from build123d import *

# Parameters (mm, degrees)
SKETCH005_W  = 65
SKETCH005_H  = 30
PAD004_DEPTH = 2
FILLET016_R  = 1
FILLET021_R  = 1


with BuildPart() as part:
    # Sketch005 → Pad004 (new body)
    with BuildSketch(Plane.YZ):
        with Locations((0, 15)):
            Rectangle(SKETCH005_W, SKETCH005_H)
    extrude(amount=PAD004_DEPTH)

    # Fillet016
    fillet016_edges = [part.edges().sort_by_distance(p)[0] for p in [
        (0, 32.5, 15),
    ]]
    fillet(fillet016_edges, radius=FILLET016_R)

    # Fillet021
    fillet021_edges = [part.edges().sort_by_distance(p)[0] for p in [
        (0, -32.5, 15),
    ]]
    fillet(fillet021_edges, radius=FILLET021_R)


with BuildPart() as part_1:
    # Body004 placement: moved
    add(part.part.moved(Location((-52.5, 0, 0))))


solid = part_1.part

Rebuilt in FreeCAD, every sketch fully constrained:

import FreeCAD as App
import Part
import Sketcher
Q = App.Units.Quantity


def edges_at(feature, points):
    """Names of the edges that pass closest to the given points."""
    edges = feature.Shape.Edges
    near = lambda p: min(range(len(edges)), key=lambda i: edges[i].distToShape(Part.Vertex(*p))[0])
    return sorted({f"Edge{near(p) + 1}" for p in points})

doc = App.newDocument("Part")
params = doc.addObject("Spreadsheet::Sheet", "Params")
for row, (alias, value) in enumerate([
    ("sketch1_width", "65 mm"),
    ("sketch1_height", "30 mm"),
    ("pad1_length", "2 mm"),
    ("fillet_radius", "1 mm"),
    ("fillet2_radius", "1 mm"),
], start=1):
    params.set(f"A{row}", alias)
    params.set(f"B{row}", "=" + value)
    params.setAlias(f"B{row}", alias)

body = doc.addObject("PartDesign::Body", "Body")

sketch1 = doc.addObject("Sketcher::SketchObject", "Sketch")
body.addObject(sketch1)
sketch1.AttachmentSupport = (doc.YZ_Plane, [""])
sketch1.MapMode = "FlatFace"
sketch1.addGeometry([
    Part.LineSegment(App.Vector(-32.5, 30, 0), App.Vector(-32.5, 0, 0)),
    Part.LineSegment(App.Vector(-32.5, 0, 0), App.Vector(32.5, 0, 0)),
    Part.LineSegment(App.Vector(32.5, 0, 0), App.Vector(32.5, 30, 0)),
    Part.LineSegment(App.Vector(32.5, 30, 0), App.Vector(-32.5, 30, 0)),
], False)
sketch1.addConstraint([
    Sketcher.Constraint("Coincident", 0, 2, 1, 1),
    Sketcher.Constraint("Coincident", 1, 2, 2, 1),
    Sketcher.Constraint("Coincident", 2, 2, 3, 1),
    Sketcher.Constraint("Coincident", 3, 2, 0, 1),
    Sketcher.Constraint("Vertical", 0),
    Sketcher.Constraint("Horizontal", 1),
    Sketcher.Constraint("Vertical", 2),
    Sketcher.Constraint("Horizontal", 3),
    Sketcher.Constraint("Symmetric", 0, 2, 1, 2, -1, 1),
    Sketcher.Constraint("DistanceX", 1, 1, 1, 2, Q("65 mm")),
    Sketcher.Constraint("DistanceY", 0, 2, 0, 1, Q("30 mm")),
])
sketch1.setExpression("Constraints[9]", "Params.sketch1_width")
sketch1.setExpression("Constraints[10]", "Params.sketch1_height")
pad1 = doc.addObject("PartDesign::Pad", "Pad")
body.addObject(pad1)
pad1.Profile = sketch1
pad1.setExpression("Length", "Params.pad1_length")
doc.recompute()

fillet = doc.addObject("PartDesign::Fillet", "Fillet")
body.addObject(fillet)
fillet.Base = (pad1, edges_at(pad1, [(0, 32.5, 15)]))
fillet.setExpression("Radius", "Params.fillet_radius")
doc.recompute()

fillet2 = doc.addObject("PartDesign::Fillet", "Fillet001")
body.addObject(fillet2)
fillet2.Base = (fillet, edges_at(fillet, [(0, -32.5, 15)]))
fillet2.setExpression("Radius", "Params.fillet2_radius")
body2 = doc.addObject("PartDesign::Body", "Body001")
doc.recompute()

body.Placement = App.Placement(App.Vector(-52.5, 0, 0), App.Rotation(App.Vector(0, 0, 1), 0))
boolean = doc.addObject("PartDesign::Boolean", "Boolean")
body2.addObject(boolean)
boolean.Type = "Fuse"
boolean.addObjects([body])

doc.recompute()
